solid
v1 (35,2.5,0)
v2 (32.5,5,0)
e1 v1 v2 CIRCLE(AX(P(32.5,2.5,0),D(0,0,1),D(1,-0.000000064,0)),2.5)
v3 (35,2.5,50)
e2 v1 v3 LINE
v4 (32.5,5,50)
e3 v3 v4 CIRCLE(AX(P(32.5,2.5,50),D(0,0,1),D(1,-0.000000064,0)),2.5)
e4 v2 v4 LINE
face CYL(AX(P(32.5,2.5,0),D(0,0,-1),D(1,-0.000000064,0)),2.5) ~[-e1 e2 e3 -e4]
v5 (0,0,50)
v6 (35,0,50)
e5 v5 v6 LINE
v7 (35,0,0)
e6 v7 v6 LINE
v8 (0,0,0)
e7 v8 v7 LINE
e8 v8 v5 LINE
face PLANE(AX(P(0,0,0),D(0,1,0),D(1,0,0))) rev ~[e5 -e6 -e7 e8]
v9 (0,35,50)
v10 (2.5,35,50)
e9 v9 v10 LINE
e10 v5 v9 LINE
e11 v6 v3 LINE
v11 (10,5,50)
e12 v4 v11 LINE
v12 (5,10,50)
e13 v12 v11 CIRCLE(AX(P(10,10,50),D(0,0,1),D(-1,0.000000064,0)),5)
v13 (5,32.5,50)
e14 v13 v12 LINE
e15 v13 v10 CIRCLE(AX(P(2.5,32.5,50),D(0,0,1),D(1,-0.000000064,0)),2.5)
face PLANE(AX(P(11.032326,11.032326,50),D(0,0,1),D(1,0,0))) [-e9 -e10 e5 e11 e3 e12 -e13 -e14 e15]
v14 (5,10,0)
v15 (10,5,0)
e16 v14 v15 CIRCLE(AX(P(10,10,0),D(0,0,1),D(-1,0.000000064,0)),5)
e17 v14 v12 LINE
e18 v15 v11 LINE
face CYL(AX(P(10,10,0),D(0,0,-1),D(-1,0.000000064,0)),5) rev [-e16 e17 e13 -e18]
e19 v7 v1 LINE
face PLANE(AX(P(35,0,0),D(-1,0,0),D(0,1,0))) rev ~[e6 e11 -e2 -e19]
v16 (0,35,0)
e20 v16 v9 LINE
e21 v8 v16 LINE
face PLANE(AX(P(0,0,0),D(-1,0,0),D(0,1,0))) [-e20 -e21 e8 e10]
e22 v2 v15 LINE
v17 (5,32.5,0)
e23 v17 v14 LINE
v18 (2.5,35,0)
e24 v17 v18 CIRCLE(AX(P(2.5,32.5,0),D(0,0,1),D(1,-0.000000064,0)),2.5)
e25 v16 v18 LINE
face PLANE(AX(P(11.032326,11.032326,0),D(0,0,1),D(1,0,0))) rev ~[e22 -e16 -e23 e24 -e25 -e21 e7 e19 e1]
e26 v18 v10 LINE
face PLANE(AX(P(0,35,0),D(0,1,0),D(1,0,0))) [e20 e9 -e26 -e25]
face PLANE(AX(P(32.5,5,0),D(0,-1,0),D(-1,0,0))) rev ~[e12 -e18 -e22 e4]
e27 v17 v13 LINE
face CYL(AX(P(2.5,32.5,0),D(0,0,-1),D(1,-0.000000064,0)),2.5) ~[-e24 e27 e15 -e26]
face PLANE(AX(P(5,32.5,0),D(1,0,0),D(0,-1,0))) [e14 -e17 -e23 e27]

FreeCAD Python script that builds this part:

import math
import FreeCAD as App
import Part
import Sketcher
Q = App.Units.Quantity

doc = App.newDocument("Part")
body = doc.addObject("PartDesign::Body", "Body")

# Sketch on XY plane
sketch1 = body.newObject("Sketcher::SketchObject", "Sketch")
sketch1.AttachmentSupport = (doc.getObject("XY_Plane"), [""])
sketch1.MapMode = "FlatFace"
sketch1.addGeometry([
    Part.LineSegment(App.Vector(0, 0, 0), App.Vector(35, 0, 0)),  # 0
    Part.LineSegment(App.Vector(35, 0, 0), App.Vector(35, 2.5, 0)),  # 1
    Part.ArcOfCircle(Part.Circle(App.Vector(32.5, 2.5, 0), App.Vector(0, 0, 1), 2.5), math.radians(0), math.radians(90)),  # 2
    Part.LineSegment(App.Vector(32.5, 5, 0), App.Vector(10, 5, 0)),  # 3
    Part.ArcOfCircle(Part.Circle(App.Vector(10, 10, 0), App.Vector(0, 0, 1), 5), math.radians(180), math.radians(270)),  # 4
    Part.LineSegment(App.Vector(5, 10, 0), App.Vector(5, 32.5, 0)),  # 5
    Part.ArcOfCircle(Part.Circle(App.Vector(2.5, 32.5, 0), App.Vector(0, 0, 1), 2.5), math.radians(0), math.radians(90)),  # 6
    Part.LineSegment(App.Vector(2.5, 35, 0), App.Vector(0, 35, 0)),  # 7
    Part.LineSegment(App.Vector(0, 35, 0), App.Vector(0, 0, 0)),  # 8
], False)
sketch1.addConstraint([
    Sketcher.Constraint("Coincident", 0, 2, 1, 1),
    Sketcher.Constraint("Tangent", 1, 2, 2, 1),
    Sketcher.Constraint("Tangent", 2, 2, 3, 1),
    Sketcher.Constraint("Tangent", 3, 2, 4, 2),
    Sketcher.Constraint("Tangent", 4, 1, 5, 1),
    Sketcher.Constraint("Tangent", 5, 2, 6, 1),
    Sketcher.Constraint("Tangent", 6, 2, 7, 1),
    Sketcher.Constraint("Coincident", 7, 2, 8, 1),
    Sketcher.Constraint("Coincident", 8, 2, 0, 1),
    Sketcher.Constraint("Horizontal", 0),
    Sketcher.Constraint("Vertical", 1),
    Sketcher.Constraint("Horizontal", 3),
    Sketcher.Constraint("Vertical", 5),
    Sketcher.Constraint("Horizontal", 7),
    Sketcher.Constraint("Vertical", 8),
    Sketcher.Constraint("Coincident", 8, 2, -1, 1),
    Sketcher.Constraint("Equal", 2, 6),
    Sketcher.Constraint("Equal", 7, 1),
    Sketcher.Constraint("Equal", 3, 5),
    Sketcher.Constraint("Radius", 4, Q("5 mm")),
    Sketcher.Constraint("Radius", 2, Q("2.5 mm")),
    Sketcher.Constraint("DistanceX", 0, 1, 0, 2, Q("35 mm")),
    Sketcher.Constraint("DistanceX", 3, 2, 3, 1, Q("22.5 mm")),
])
pad1 = body.newObject("PartDesign::Pad", "Pad")
pad1.Profile = sketch1
pad1.Length = 50

doc.recompute()
